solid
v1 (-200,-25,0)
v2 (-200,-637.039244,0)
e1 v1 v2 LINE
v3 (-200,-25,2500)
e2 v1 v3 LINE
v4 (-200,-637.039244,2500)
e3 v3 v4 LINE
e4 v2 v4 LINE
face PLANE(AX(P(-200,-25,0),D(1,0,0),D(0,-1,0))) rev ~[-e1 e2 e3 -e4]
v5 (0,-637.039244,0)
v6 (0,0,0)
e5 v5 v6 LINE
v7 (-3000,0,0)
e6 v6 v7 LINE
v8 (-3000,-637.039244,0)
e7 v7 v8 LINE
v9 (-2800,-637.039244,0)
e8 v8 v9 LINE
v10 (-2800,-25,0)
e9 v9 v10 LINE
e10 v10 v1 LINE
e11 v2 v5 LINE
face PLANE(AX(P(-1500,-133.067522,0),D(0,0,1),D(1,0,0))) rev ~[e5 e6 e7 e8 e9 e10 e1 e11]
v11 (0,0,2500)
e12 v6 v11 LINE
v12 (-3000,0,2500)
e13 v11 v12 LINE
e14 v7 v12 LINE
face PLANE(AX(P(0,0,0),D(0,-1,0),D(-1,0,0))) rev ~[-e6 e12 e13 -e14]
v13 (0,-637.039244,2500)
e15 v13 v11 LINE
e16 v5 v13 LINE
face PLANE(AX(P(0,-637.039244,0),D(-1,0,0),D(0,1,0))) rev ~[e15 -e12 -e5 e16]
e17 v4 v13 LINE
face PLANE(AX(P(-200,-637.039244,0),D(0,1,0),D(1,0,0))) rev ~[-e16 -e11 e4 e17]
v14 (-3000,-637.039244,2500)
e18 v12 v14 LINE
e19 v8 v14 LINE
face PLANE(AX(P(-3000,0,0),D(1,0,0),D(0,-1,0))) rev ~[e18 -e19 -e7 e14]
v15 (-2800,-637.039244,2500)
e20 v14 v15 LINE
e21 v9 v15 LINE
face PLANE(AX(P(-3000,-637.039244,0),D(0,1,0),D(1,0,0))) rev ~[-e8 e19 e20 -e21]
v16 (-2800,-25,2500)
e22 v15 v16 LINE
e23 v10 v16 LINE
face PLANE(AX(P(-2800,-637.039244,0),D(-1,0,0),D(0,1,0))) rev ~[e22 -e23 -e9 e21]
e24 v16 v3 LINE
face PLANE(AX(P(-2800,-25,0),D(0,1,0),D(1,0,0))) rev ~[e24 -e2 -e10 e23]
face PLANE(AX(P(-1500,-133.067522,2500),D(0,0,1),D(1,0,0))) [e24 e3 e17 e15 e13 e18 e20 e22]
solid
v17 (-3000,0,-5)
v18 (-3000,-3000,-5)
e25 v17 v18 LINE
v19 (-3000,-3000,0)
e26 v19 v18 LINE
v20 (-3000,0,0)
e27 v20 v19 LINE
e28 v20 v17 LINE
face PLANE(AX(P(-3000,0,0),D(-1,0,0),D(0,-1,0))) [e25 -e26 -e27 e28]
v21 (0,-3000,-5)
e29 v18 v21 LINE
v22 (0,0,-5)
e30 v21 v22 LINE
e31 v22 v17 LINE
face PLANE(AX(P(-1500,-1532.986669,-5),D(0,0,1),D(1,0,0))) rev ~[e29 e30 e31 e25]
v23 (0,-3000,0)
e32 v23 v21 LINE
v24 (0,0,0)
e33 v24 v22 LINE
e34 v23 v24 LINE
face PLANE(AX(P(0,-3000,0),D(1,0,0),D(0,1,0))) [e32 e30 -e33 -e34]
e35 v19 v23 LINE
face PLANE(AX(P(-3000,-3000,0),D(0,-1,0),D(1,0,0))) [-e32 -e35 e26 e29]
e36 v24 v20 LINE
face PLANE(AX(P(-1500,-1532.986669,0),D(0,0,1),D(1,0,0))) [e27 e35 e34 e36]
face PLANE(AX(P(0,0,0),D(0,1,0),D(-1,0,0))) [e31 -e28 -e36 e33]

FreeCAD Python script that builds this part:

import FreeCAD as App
import Part
import Sketcher
from FreeCAD import Vector

doc = App.newDocument("Part")
body = doc.addObject("PartDesign::Body", "Body")

# Sketch on XY plane
sketch1 = doc.addObject("Sketcher::SketchObject", "Sketch")
body.addObject(sketch1)
sketch1.AttachmentSupport = (doc.XY_Plane, [""])
sketch1.MapMode = "FlatFace"
sketch1.addGeometry([
    Part.LineSegment(Vector(0, -3000, 0), Vector(0, 0, 0)),
    Part.LineSegment(Vector(0, 0, 0), Vector(-3000, 0, 0)),
    Part.LineSegment(Vector(-3000, 0, 0), Vector(-3000, -3000, 0)),
    Part.LineSegment(Vector(-3000, -3000, 0), Vector(0, -3000, 0)),
], False)
sketch1.addConstraint([
    Sketcher.Constraint("Coincident", 0, 2, 1, 1),
    Sketcher.Constraint("Coincident", 1, 2, 2, 1),
    Sketcher.Constraint("Coincident", 2, 2, 3, 1),
    Sketcher.Constraint("Coincident", 3, 2, 0, 1),
    Sketcher.Constraint("Vertical", 0),
    Sketcher.Constraint("Horizontal", 1),
    Sketcher.Constraint("Vertical", 2),
    Sketcher.Constraint("Horizontal", 3),
    Sketcher.Constraint("Coincident", 0, 2, -1, 1),
    Sketcher.Constraint("Equal", 3, 0),
    Sketcher.Constraint("DistanceX", 1, 2, 1, 1, 3000.0),
])
pad1 = doc.addObject("PartDesign::Pad", "Pad")
body.addObject(pad1)
pad1.Profile = sketch1
pad1.Length = 5
pad1.Reversed = True
body2 = doc.addObject("PartDesign::Body", "Body001")

# Sketch on XY plane
sketch2 = doc.addObject("Sketcher::SketchObject", "Sketch001")
body2.addObject(sketch2)
sketch2.AttachmentSupport = (doc.getObject("XY_Plane001"), [""])
sketch2.MapMode = "FlatFace"
sketch2.addGeometry([
    Part.LineSegment(Vector(0, -637, 0), Vector(0, 0, 0)),  # 0
    Part.LineSegment(Vector(0, 0, 0), Vector(-3000, 0, 0)),  # 1
    Part.LineSegment(Vector(-3000, 0, 0), Vector(-3000, -637, 0)),  # 2
    Part.LineSegment(Vector(-3000, -637, 0), Vector(-2800, -637, 0)),  # 3
    Part.LineSegment(Vector(-2800, -637, 0), Vector(-2800, -25, 0)),  # 4
    Part.LineSegment(Vector(-2800, -25, 0), Vector(-200, -25, 0)),  # 5
    Part.LineSegment(Vector(-200, -25, 0), Vector(-200, -637, 0)),  # 6
    Part.LineSegment(Vector(-200, -637, 0), Vector(0, -637, 0)),  # 7
], False)
sketch2.addConstraint([
    Sketcher.Constraint("Coincident", 0, 2, 1, 1),
    Sketcher.Constraint("Coincident", 1, 2, 2, 1),
    Sketcher.Constraint("Coincident", 2, 2, 3, 1),
    Sketcher.Constraint("Coincident", 3, 2, 4, 1),
    Sketcher.Constraint("Coincident", 4, 2, 5, 1),
    Sketcher.Constraint("Coincident", 5, 2, 6, 1),
    Sketcher.Constraint("Coincident", 6, 2, 7, 1),
    Sketcher.Constraint("Coincident", 7, 2, 0, 1),
    Sketcher.Constraint("Vertical", 0),
    Sketcher.Constraint("Horizontal", 1),
    Sketcher.Constraint("Vertical", 2),
    Sketcher.Constraint("Horizontal", 3),
    Sketcher.Constraint("Vertical", 4),
    Sketcher.Constraint("Horizontal", 5),
    Sketcher.Constraint("Vertical", 6),
    Sketcher.Constraint("Horizontal", 7),
    Sketcher.Constraint("Coincident", 0, 2, -1, 1),
    Sketcher.Constraint("Horizontal", 3, 2, 6, 2),
    Sketcher.Constraint("Equal", 3, 7),
    Sketcher.Constraint("DistanceX", 1, 2, 1, 1, 3000.0),
    Sketcher.Constraint("DistanceX", 3, 1, 3, 2, 200.0),
    Sketcher.Constraint("DistanceY", 4, 2, -1, 1, 25.0),
    Sketcher.Constraint("DistanceY", 0, 1, 0, 2, 637.039244),
])
pad2 = doc.addObject("PartDesign::Pad", "Pad001")
body2.addObject(pad2)
pad2.Profile = sketch2
pad2.Length = 2500

doc.recompute()
